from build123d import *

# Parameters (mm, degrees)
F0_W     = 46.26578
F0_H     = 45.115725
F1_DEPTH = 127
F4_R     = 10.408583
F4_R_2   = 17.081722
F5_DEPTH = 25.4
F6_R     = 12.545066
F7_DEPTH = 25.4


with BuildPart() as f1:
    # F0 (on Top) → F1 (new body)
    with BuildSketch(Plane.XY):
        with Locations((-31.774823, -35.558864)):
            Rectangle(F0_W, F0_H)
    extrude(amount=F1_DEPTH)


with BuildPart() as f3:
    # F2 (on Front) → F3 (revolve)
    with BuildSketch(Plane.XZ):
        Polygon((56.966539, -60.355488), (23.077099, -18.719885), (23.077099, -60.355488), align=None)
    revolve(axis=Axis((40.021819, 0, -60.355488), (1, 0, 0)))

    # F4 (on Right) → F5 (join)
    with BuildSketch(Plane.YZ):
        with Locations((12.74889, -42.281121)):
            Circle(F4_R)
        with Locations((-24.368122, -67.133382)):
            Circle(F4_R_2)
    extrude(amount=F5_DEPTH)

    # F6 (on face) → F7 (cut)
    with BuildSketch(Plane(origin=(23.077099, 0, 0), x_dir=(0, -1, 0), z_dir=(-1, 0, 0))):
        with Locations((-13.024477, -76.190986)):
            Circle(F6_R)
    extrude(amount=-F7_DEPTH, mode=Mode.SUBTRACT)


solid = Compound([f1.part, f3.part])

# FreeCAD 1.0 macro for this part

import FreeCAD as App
import Part
import Sketcher
from FreeCAD import Vector
Q = App.Units.Quantity


def add_polygon(sketch, points):
    """Adds a closed chain of lines whose ends are joined by coincident constraints."""
    first, n = sketch.GeometryCount, len(points)
    for a, b in zip(points, points[1:] + points[:1]):
        sketch.addGeometry(Part.LineSegment(App.Vector(*a, 0), App.Vector(*b, 0)), False)
    for i in range(n):
        sketch.addConstraint(Sketcher.Constraint("Coincident", first + i, 2, first + (i + 1) % n, 1))

doc = App.newDocument("Part")
body = doc.addObject("PartDesign::Body", "Body")

sketch1 = body.newObject("Sketcher::SketchObject", "Sketch")
sketch1.AttachmentSupport = (doc.getObject("XY_Plane"), [""])
sketch1.MapMode = "FlatFace"
add_polygon(sketch1, [(-55, -13), (-55, -58), (-9, -58), (-9, -13)])
sketch1.addConstraint([
    Sketcher.Constraint("Vertical", 0),
    Sketcher.Constraint("Horizontal", 1),
    Sketcher.Constraint("Vertical", 2),
    Sketcher.Constraint("Horizontal", 3),
    Sketcher.Constraint("DistanceX", 1, 1, 1, 2, Q("46.26578 mm")),
    Sketcher.Constraint("DistanceY", 2, 2, -1, 1, Q("13.001001 mm")),
    Sketcher.Constraint("DistanceY", 0, 2, 0, 1, Q("45.115725 mm")),
    Sketcher.Constraint("DistanceX", 0, 2, -1, 1, Q("54.907713 mm")),
])
pad1 = body.newObject("PartDesign::Pad", "Pad")
pad1.Profile = sketch1
pad1.Length = Q("5 in")
body2 = doc.addObject("PartDesign::Body", "Body001")

sketch2 = body2.newObject("Sketcher::SketchObject", "Sketch001")
sketch2.AttachmentSupport = (doc.getObject("XZ_Plane001"), [""])
sketch2.MapMode = "FlatFace"
add_polygon(sketch2, [(57, -60), (23, -19), (23, -60)])
sketch2.addGeometry(Part.LineSegment(Vector(23, -60, 0), Vector(57, -60, 0)), True)
sketch2.addConstraint([
    Sketcher.Constraint("Vertical", 1),
    Sketcher.Constraint("Horizontal", 2),
    Sketcher.Constraint("Horizontal", 3),
    Sketcher.Constraint("Coincident", 3, 1, 1, 2),
    Sketcher.Constraint("Equal", 2, 3),
    Sketcher.Constraint("DistanceX", 2, 1, 2, 2, Q("33.88944 mm")),
    Sketcher.Constraint("DistanceX", -1, 1, 0, 2, Q("23.077099 mm")),
    Sketcher.Constraint("DistanceY", 1, 2, 1, 1, Q("41.635603 mm")),
    Sketcher.Constraint("DistanceY", 0, 2, -1, 1, Q("18.719885 mm")),
])
revolution = body2.newObject("PartDesign::Revolution", "Revolution")
revolution.Profile = sketch2
revolution.ReferenceAxis = (sketch2, ["Axis0"])
revolution.Angle = 360

sketch3 = body2.newObject("Sketcher::SketchObject", "Sketch002")
sketch3.AttachmentSupport = (doc.getObject("YZ_Plane001"), [""])
sketch3.MapMode = "FlatFace"
sketch3.addGeometry([
    Part.Circle(Vector(13, -42, 0), Vector(0, 0, 1), 10),
    Part.Circle(Vector(-24, -67, 0), Vector(0, 0, 1), 17),
], False)
sketch3.addConstraint([
    Sketcher.Constraint("Diameter", 0, Q("20.817166 mm")),
    Sketcher.Constraint("Diameter", 1, Q("34.163444 mm")),
    Sketcher.Constraint("DistanceX", -1, 1, 0, 3, Q("12.74889 mm")),
    Sketcher.Constraint("DistanceY", 0, 3, -1, 1, Q("42.281121 mm")),
    Sketcher.Constraint("DistanceX", 1, 3, -1, 1, Q("24.368122 mm")),
    Sketcher.Constraint("DistanceY", 1, 3, -1, 1, Q("67.133382 mm")),
])
pad2 = body2.newObject("PartDesign::Pad", "Pad001")
pad2.Profile = sketch3
pad2.Length = Q("1 in")

sketch4 = body2.newObject("Sketcher::SketchObject", "Sketch003")
sketch4.AttachmentSupport = (doc.getObject("YZ_Plane001"), [""])
sketch4.MapMode = "FlatFace"
sketch4.AttachmentOffset = App.Placement(Vector(0, 0, 23.077099), App.Rotation())
sketch4.addGeometry(Part.Circle(Vector(13, -76, 0), Vector(0, 0, 1), 13), False)
sketch4.addConstraint([
    Sketcher.Constraint("Diameter", 0, Q("25.090132 mm")),
    Sketcher.Constraint("DistanceX", -1, 1, 0, 3, Q("13.024477 mm")),
    Sketcher.Constraint("DistanceY", 0, 3, -1, 1, Q("76.190986 mm")),
])
pocket1 = body2.newObject("PartDesign::Pocket", "Pocket")
pocket1.Profile = sketch4
pocket1.Length = Q("1 in")
pocket1.Reversed = True

doc.recompute()
